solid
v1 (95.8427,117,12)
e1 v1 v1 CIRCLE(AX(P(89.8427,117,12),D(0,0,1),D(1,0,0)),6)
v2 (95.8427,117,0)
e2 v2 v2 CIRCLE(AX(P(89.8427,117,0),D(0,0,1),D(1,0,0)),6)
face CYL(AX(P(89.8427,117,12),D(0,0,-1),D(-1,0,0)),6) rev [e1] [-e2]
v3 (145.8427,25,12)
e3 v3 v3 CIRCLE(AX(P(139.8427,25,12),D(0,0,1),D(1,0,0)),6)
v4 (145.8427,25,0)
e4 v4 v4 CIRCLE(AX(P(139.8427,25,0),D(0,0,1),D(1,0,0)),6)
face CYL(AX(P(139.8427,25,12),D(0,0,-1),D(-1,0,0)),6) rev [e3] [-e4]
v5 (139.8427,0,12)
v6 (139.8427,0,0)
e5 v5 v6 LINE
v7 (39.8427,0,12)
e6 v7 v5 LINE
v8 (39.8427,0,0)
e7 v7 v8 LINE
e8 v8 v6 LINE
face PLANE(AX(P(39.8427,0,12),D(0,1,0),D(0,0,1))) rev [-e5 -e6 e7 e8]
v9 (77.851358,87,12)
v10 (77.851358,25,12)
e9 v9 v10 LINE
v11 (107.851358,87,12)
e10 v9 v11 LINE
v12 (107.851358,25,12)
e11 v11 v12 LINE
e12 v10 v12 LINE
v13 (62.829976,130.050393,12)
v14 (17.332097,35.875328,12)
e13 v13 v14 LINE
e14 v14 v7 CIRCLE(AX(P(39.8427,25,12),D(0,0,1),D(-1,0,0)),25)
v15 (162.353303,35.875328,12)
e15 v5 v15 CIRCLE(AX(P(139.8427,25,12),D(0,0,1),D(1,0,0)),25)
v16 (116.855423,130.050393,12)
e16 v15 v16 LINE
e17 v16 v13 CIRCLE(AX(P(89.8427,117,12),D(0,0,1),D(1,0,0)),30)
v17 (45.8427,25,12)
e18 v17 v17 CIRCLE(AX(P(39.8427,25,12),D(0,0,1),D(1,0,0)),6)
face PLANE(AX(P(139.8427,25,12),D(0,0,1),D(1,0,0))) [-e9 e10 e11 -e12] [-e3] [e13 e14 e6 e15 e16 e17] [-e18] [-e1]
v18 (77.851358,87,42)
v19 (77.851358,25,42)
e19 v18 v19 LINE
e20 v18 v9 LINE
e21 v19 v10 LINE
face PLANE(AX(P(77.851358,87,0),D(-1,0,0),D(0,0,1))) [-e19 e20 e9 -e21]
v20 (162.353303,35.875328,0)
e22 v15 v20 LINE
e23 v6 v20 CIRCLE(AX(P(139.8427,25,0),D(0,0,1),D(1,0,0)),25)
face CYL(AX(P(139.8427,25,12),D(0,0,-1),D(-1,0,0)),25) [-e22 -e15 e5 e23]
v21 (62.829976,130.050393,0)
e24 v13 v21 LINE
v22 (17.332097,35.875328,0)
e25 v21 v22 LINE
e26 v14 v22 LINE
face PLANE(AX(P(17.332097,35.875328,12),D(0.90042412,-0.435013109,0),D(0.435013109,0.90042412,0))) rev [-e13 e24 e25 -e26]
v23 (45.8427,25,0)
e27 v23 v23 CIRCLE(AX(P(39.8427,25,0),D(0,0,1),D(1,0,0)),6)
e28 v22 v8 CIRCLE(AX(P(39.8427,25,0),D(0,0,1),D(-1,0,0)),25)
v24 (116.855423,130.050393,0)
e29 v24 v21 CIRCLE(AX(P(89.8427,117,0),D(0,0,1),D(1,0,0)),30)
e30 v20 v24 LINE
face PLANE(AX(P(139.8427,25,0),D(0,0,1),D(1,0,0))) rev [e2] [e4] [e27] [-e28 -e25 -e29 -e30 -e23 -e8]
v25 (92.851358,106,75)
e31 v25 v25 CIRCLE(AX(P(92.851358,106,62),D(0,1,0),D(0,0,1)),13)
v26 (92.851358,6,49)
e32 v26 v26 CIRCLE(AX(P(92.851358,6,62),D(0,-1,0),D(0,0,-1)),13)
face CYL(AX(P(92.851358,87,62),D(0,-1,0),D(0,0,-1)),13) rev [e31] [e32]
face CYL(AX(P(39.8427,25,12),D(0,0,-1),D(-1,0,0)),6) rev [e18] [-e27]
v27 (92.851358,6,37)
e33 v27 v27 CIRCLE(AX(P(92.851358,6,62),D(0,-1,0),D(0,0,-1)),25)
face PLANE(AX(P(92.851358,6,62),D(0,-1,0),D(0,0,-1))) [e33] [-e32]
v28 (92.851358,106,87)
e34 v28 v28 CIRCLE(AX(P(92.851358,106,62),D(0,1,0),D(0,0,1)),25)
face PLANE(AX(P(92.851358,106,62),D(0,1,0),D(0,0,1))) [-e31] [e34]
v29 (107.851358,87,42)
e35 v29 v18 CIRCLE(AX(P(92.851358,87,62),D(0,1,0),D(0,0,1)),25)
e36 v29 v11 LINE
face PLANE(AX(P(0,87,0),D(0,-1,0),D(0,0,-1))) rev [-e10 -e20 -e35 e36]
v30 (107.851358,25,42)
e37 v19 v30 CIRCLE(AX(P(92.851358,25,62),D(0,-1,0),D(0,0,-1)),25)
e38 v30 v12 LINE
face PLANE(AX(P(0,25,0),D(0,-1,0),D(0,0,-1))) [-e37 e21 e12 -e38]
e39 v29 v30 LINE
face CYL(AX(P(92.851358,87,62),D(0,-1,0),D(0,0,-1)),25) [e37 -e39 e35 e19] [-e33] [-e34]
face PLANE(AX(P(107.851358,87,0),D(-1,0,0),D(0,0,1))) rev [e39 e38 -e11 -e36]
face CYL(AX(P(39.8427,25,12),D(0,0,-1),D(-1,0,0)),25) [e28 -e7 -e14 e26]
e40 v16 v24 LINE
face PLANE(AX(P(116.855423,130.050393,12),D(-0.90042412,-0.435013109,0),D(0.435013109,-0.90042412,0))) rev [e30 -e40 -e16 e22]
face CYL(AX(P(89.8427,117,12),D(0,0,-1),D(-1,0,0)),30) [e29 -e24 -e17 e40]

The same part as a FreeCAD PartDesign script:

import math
import FreeCAD as App
import Part
import Sketcher

V = App.Vector
Q = App.Units.Quantity

doc = App.newDocument("Part")
body = doc.addObject("PartDesign::Body", "Body")

# Sketch on XY plane
sketch1 = body.newObject("Sketcher::SketchObject", "Sketch")
sketch1.AttachmentSupport = (doc.getObject("XY_Plane"), [""])
sketch1.MapMode = "FlatFace"
sketch1.addGeometry([
    Part.LineSegment(V(63, 130, 0), V(17, 36, 0)),  # 0
    Part.ArcOfCircle(Part.Circle(V(40, 25, 0), V(0, 0, 1), 25), math.radians(154), math.radians(270)),  # 1
    Part.LineSegment(V(40, 0, 0), V(140, 0, 0)),  # 2
    Part.ArcOfCircle(Part.Circle(V(140, 25, 0), V(0, 0, 1), 25), math.radians(-90), math.radians(26)),  # 3
    Part.LineSegment(V(162, 36, 0), V(117, 130, 0)),  # 4
    Part.ArcOfCircle(Part.Circle(V(90, 117, 0), V(0, 0, 1), 30), math.radians(26), math.radians(154)),  # 5
    Part.Circle(V(140, 25, 0), V(0, 0, 1), 6),  # 6
    Part.Circle(V(40, 25, 0), V(0, 0, 1), 6),  # 7
    Part.Circle(V(90, 117, 0), V(0, 0, 1), 6),  # 8
], False)
sketch1.addConstraint([
    Sketcher.Constraint("Tangent", 0, 2, 1, 1),
    Sketcher.Constraint("Tangent", 1, 2, 2, 1),
    Sketcher.Constraint("Tangent", 2, 2, 3, 1),
    Sketcher.Constraint("Tangent", 3, 2, 4, 1),
    Sketcher.Constraint("Tangent", 4, 2, 5, 1),
    Sketcher.Constraint("Tangent", 5, 2, 0, 1),
    Sketcher.Constraint("Horizontal", 2),
    Sketcher.Constraint("Coincident", 6, 3, 3, 3),
    Sketcher.Constraint("Coincident", 7, 3, 1, 3),
    Sketcher.Constraint("Coincident", 8, 3, 5, 3),
    Sketcher.Constraint("Equal", 1, 3),
    Sketcher.Constraint("Equal", 6, 7),
    Sketcher.Constraint("Equal", 7, 8),
    Sketcher.Constraint("PointOnObject", 1, 2, -1),
    Sketcher.Constraint("Horizontal", 0, 2, 3, 2),
    Sketcher.Constraint("Diameter", 6, Q("12 mm")),
    Sketcher.Constraint("Radius", 1, Q("25 mm")),
    Sketcher.Constraint("Radius", 5, Q("30 mm")),
    Sketcher.Constraint("DistanceX", 2, 1, 2, 2, Q("100 mm")),
    Sketcher.Constraint("DistanceY", -1, 1, 5, 3, Q("117 mm")),
    Sketcher.Constraint("DistanceX", -1, 1, 1, 3, Q("39.8427 mm")),
])
pad1 = body.newObject("PartDesign::Pad", "Pad")
pad1.Profile = sketch1
pad1.Length = 12

# Sketch on XZ plane
sketch2 = body.newObject("Sketcher::SketchObject", "Sketch001")
sketch2.AttachmentSupport = (doc.getObject("XZ_Plane"), [""])
sketch2.MapMode = "FlatFace"
sketch2.AttachmentOffset = App.Placement(V(0, 0, -25), App.Rotation())
sketch2.addGeometry([
    Part.LineSegment(V(78, 42, 0), V(78, 12, 0)),  # 0
    Part.LineSegment(V(78, 12, 0), V(108, 12, 0)),  # 1
    Part.LineSegment(V(108, 12, 0), V(108, 42, 0)),  # 2
    Part.ArcOfCircle(Part.Circle(V(93, 62, 0), V(0, 0, 1), 25), math.radians(-53), math.radians(233)),  # 3
    Part.Circle(V(93, 62, 0), V(0, 0, 1), 13),  # 4
], False)
sketch2.addConstraint([
    Sketcher.Constraint("Coincident", 0, 2, 1, 1),
    Sketcher.Constraint("Coincident", 1, 2, 2, 1),
    Sketcher.Constraint("Coincident", 2, 2, 3, 1),
    Sketcher.Constraint("Coincident", 3, 2, 0, 1),
    Sketcher.Constraint("Vertical", 0),
    Sketcher.Constraint("Horizontal", 1),
    Sketcher.Constraint("Vertical", 2),
    Sketcher.Constraint("Coincident", 4, 3, 3, 3),
    Sketcher.Constraint("Horizontal", 2, 2, 3, 2),
    Sketcher.Constraint("Equal", 1, 0),
    Sketcher.Constraint("Diameter", 4, Q("26 mm")),
    Sketcher.Constraint("Radius", 3, Q("25 mm")),
    Sketcher.Constraint("DistanceX", 1, 1, 1, 2, Q("30 mm")),
    Sketcher.Constraint("DistanceY", -1, 1, 3, 3, Q("62 mm")),
    Sketcher.Constraint("DistanceX", -1, 1, 3, 3, Q("92.851358 mm")),
])
pad2 = body.newObject("PartDesign::Pad", "Pad001")
pad2.Profile = sketch2
pad2.Length = 62
pad2.Reversed = True

# Sketch on XZ plane
sketch3 = body.newObject("Sketcher::SketchObject", "Sketch002")
sketch3.AttachmentSupport = (doc.getObject("XZ_Plane"), [""])
sketch3.MapMode = "FlatFace"
sketch3.AttachmentOffset = App.Placement(V(0, 0, -25), App.Rotation())
sketch3.addGeometry([
    Part.Circle(V(93, 62, 0), V(0, 0, 1), 25),
    Part.Circle(V(93, 62, 0), V(0, 0, 1), 13),
], False)
sketch3.addConstraint([
    Sketcher.Constraint("Coincident", 1, 3, 0, 3),
    Sketcher.Constraint("Diameter", 0, Q("50 mm")),
    Sketcher.Constraint("Diameter", 1, Q("26 mm")),
    Sketcher.Constraint("DistanceY", -1, 1, 0, 3, Q("62 mm")),
    Sketcher.Constraint("DistanceX", -1, 1, 0, 3, Q("92.851358 mm")),
])
pad3 = body.newObject("PartDesign::Pad", "Pad002")
pad3.Profile = sketch3
pad3.Length = 19

# Sketch on XZ plane
sketch4 = body.newObject("Sketcher::SketchObject", "Sketch003")
sketch4.AttachmentSupport = (doc.getObject("XZ_Plane"), [""])
sketch4.MapMode = "FlatFace"
sketch4.AttachmentOffset = App.Placement(V(0, 0, -87), App.Rotation())
sketch4.addGeometry([
    Part.Circle(V(93, 62, 0), V(0, 0, 1), 25),
    Part.Circle(V(93, 62, 0), V(0, 0, 1), 13),
], False)
sketch4.addConstraint([
    Sketcher.Constraint("Coincident", 1, 3, 0, 3),
    Sketcher.Constraint("Diameter", 0, Q("50 mm")),
    Sketcher.Constraint("Diameter", 1, Q("26 mm")),
    Sketcher.Constraint("DistanceY", -1, 1, 0, 3, Q("62 mm")),
    Sketcher.Constraint("DistanceX", -1, 1, 0, 3, Q("92.851358 mm")),
])
pad4 = body.newObject("PartDesign::Pad", "Pad003")
pad4.Profile = sketch4
pad4.Length = 19
pad4.Reversed = True

doc.recompute()
